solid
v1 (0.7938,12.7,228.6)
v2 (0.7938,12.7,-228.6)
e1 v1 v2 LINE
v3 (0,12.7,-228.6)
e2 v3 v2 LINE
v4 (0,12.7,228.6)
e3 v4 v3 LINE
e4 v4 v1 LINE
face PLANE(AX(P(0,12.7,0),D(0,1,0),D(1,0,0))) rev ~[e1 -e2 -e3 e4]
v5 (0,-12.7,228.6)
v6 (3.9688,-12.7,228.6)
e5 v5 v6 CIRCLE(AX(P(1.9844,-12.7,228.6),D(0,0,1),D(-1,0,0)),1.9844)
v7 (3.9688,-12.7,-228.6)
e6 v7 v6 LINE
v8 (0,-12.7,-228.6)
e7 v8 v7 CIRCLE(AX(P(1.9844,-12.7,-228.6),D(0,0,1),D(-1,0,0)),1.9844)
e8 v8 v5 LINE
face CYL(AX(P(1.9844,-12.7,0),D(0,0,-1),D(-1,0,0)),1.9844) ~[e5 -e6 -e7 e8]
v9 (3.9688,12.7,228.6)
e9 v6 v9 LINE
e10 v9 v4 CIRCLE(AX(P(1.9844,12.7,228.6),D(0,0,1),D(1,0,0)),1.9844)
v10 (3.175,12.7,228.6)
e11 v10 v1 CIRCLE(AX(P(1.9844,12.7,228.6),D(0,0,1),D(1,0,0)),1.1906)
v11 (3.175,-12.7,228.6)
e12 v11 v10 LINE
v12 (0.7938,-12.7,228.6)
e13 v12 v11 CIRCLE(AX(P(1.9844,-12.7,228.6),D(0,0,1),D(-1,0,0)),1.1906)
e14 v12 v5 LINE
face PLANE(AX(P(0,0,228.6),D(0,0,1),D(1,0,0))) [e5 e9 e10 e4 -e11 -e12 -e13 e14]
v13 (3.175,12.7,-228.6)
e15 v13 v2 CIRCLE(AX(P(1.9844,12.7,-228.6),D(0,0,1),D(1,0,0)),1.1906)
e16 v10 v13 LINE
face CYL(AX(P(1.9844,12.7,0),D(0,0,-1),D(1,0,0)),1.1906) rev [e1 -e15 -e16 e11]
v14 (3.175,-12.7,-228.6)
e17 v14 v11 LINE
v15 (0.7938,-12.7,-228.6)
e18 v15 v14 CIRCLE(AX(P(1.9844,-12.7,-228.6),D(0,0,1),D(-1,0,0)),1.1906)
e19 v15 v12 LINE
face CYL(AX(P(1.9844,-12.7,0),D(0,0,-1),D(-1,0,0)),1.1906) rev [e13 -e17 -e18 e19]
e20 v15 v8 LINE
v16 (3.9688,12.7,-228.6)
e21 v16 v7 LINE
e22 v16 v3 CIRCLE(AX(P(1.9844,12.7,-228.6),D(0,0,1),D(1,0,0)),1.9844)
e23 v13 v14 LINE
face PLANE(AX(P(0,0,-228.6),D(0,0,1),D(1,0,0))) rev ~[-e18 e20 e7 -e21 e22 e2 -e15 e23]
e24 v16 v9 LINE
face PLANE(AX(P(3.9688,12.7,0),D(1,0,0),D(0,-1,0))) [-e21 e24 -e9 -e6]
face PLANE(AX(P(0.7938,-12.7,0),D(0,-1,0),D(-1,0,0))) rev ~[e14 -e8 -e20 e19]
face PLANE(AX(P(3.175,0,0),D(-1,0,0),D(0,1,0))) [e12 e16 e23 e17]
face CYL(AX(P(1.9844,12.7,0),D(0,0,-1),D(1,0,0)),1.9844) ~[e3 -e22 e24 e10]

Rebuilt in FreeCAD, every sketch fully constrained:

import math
import FreeCAD as App
import Part
import Sketcher

V = App.Vector
Q = App.Units.Quantity

doc = App.newDocument("Part")
body = doc.addObject("PartDesign::Body", "Body")

# Sketch on XY plane
sketch1 = body.newObject("Sketcher::SketchObject", "Sketch")
sketch1.AttachmentSupport = (doc.getObject("XY_Plane"), [""])
sketch1.MapMode = "FlatFace"
sketch1.addGeometry([
    Part.LineSegment(V(3.2, 12.7, 0), V(3.2, -12.7, 0)),  # 0
    Part.ArcOfCircle(Part.Circle(V(2, -12.7, 0), V(0, 0, 1), 1.2), math.radians(180), math.radians(360)),  # 1
    Part.LineSegment(V(0.8, -12.7, 0), V(0, -12.7, 0)),  # 2
    Part.ArcOfCircle(Part.Circle(V(2, -12.7, 0), V(0, 0, 1), 2), math.radians(180), math.radians(360)),  # 3
    Part.LineSegment(V(4, -12.7, 0), V(4, 12.7, 0)),  # 4
    Part.ArcOfCircle(Part.Circle(V(2, 12.7, 0), V(0, 0, 1), 2), math.radians(0), math.radians(180)),  # 5
    Part.LineSegment(V(0, 12.7, 0), V(0.8, 12.7, 0)),  # 6
    Part.ArcOfCircle(Part.Circle(V(2, 12.7, 0), V(0, 0, 1), 1.2), math.radians(0), math.radians(180)),  # 7
], False)
sketch1.addConstraint([
    Sketcher.Constraint("Tangent", 0, 2, 1, 2),
    Sketcher.Constraint("Coincident", 1, 1, 2, 1),
    Sketcher.Constraint("Coincident", 2, 2, 3, 1),
    Sketcher.Constraint("Tangent", 3, 2, 4, 1),
    Sketcher.Constraint("Tangent", 4, 2, 5, 1),
    Sketcher.Constraint("Coincident", 5, 2, 6, 1),
    Sketcher.Constraint("Coincident", 6, 2, 7, 2),
    Sketcher.Constraint("Tangent", 7, 1, 0, 1),
    Sketcher.Constraint("Vertical", 0),
    Sketcher.Constraint("Horizontal", 2),
    Sketcher.Constraint("Vertical", 4),
    Sketcher.Constraint("Horizontal", 6),
    Sketcher.Constraint("Coincident", 3, 3, 1, 3),
    Sketcher.Constraint("Coincident", 7, 3, 5, 3),
    Sketcher.Constraint("Equal", 3, 5),
    Sketcher.Constraint("Symmetric", 2, 2, 5, 2, -1, 1),
    Sketcher.Constraint("Horizontal", 0, 2, 1, 1),
    Sketcher.Constraint("Horizontal", 4, 2, 5, 2),
    Sketcher.Constraint("DistanceY", 0, 2, 0, 1, Q("1 in")),
    Sketcher.Constraint("Radius", 3, Q("0.078126 in")),
    Sketcher.Constraint("DistanceX", 2, 2, 2, 1, Q("0.031252 in")),
])
pad1 = body.newObject("PartDesign::Pad", "Pad")
pad1.Profile = sketch1
pad1.Length = Q("18 in")
pad1.Midplane = True

doc.recompute()
